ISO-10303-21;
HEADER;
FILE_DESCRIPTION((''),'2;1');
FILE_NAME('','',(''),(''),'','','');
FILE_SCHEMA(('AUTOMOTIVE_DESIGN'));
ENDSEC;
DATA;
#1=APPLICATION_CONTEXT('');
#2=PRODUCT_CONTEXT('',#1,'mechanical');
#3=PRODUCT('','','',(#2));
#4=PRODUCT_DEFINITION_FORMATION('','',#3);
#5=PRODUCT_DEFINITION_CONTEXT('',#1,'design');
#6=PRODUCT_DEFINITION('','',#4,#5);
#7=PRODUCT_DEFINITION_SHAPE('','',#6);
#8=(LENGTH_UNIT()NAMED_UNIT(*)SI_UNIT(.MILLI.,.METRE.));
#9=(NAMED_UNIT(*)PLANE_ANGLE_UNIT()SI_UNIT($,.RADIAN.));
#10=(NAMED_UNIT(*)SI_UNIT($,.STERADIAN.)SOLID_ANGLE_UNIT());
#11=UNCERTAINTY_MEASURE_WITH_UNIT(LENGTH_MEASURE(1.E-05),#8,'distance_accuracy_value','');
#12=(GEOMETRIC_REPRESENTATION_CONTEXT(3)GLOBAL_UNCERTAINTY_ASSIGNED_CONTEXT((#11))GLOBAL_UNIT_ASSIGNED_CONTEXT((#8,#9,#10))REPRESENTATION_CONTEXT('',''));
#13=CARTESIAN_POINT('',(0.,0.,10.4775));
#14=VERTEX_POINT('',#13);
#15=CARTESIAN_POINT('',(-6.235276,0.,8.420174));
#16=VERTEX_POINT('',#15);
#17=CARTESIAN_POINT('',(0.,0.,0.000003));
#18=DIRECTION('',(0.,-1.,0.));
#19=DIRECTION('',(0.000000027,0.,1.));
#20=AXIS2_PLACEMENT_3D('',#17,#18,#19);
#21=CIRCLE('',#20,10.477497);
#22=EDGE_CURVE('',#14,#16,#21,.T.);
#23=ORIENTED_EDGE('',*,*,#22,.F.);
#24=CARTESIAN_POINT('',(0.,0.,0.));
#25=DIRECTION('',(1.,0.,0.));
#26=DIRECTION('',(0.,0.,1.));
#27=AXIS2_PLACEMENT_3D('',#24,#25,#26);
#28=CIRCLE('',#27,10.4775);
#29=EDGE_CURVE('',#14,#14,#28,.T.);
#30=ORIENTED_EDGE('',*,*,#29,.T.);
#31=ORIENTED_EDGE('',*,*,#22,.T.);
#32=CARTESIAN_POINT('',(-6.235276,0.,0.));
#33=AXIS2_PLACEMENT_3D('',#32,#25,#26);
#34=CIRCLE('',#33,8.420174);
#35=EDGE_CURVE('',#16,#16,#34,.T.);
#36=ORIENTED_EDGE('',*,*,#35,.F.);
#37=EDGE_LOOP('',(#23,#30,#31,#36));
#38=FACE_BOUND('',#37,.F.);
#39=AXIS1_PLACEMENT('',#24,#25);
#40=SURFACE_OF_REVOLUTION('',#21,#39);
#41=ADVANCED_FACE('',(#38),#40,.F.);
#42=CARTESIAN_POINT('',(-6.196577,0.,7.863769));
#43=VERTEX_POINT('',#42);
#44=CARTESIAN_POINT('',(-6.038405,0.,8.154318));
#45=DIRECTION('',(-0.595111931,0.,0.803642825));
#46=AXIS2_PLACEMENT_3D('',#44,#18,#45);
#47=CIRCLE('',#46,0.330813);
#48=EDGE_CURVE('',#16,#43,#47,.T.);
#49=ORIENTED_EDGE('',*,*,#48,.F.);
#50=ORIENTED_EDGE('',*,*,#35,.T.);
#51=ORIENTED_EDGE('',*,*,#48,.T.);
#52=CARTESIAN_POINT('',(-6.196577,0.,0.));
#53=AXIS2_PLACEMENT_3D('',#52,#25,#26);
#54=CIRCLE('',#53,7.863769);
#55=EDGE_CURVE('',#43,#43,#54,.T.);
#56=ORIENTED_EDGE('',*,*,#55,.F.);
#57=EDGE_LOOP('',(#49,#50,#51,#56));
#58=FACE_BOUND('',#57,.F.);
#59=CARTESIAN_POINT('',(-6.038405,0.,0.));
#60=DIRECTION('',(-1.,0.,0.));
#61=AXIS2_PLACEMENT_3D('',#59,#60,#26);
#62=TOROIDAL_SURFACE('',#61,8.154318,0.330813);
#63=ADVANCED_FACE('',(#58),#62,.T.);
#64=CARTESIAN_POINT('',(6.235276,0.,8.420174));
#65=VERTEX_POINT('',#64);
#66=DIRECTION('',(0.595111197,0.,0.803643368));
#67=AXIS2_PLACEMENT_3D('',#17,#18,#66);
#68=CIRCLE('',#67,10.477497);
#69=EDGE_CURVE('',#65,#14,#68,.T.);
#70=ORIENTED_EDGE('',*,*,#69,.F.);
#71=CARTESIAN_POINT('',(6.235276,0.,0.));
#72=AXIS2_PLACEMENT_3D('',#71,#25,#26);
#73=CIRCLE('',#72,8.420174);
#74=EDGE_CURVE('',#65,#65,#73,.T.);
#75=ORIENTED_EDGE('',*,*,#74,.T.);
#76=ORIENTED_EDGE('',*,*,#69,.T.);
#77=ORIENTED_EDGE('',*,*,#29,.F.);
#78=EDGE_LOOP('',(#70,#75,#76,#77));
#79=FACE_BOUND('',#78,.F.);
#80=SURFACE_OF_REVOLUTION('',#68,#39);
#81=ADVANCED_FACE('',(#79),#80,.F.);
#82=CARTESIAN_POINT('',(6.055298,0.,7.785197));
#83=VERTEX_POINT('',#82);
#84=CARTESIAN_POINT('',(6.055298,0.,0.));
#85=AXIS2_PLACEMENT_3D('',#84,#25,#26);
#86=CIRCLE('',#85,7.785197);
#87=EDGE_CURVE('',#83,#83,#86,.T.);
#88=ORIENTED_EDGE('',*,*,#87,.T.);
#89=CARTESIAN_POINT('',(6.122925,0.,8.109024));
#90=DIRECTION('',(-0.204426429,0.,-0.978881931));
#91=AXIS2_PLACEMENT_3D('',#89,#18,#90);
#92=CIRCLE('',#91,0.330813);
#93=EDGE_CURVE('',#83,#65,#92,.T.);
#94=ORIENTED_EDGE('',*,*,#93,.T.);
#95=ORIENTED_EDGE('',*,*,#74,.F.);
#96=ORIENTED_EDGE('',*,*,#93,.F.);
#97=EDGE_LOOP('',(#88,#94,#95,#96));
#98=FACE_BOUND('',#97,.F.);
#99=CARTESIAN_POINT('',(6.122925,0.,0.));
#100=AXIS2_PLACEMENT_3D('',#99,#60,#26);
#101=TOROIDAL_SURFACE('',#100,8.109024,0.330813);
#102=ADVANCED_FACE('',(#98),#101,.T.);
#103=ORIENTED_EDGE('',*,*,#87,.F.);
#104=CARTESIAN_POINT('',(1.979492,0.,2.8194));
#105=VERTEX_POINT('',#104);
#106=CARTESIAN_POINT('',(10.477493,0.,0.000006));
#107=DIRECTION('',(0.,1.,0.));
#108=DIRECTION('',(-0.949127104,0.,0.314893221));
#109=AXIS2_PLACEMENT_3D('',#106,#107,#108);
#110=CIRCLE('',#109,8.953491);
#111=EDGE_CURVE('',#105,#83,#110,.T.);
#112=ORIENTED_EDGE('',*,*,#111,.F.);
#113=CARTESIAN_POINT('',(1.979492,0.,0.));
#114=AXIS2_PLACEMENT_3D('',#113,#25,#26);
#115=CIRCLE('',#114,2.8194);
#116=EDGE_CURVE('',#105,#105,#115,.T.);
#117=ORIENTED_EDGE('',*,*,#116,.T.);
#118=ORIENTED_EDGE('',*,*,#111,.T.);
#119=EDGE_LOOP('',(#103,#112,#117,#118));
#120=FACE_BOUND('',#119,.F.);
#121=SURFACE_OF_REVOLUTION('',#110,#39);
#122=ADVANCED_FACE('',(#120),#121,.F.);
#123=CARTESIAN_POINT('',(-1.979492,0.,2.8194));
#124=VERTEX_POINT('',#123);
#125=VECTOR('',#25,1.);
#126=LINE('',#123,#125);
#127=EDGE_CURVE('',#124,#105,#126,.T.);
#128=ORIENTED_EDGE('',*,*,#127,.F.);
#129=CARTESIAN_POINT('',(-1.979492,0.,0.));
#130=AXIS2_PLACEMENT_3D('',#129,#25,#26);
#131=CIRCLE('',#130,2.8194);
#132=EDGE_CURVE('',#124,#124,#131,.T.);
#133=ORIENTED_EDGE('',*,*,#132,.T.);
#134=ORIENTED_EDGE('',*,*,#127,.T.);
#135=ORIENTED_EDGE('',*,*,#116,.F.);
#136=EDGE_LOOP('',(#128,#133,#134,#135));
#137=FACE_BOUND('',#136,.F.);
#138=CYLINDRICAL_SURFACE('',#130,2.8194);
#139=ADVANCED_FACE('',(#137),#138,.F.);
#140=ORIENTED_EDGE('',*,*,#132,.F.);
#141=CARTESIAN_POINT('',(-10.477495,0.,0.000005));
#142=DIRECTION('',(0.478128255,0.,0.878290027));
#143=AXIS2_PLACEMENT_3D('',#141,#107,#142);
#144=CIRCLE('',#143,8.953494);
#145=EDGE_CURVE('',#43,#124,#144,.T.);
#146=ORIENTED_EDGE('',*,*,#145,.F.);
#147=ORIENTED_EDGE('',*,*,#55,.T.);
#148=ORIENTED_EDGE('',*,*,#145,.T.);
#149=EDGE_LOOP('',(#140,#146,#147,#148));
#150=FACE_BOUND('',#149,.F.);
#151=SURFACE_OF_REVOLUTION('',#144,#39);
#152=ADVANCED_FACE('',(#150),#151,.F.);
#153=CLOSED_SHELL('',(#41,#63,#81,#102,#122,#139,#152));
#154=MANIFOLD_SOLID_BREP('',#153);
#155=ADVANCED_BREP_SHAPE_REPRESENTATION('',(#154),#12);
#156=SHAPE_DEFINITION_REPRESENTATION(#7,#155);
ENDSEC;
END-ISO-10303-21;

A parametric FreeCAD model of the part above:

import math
import FreeCAD as App
import Part
import Sketcher
from FreeCAD import Vector
Q = App.Units.Quantity

doc = App.newDocument("Part")
params = doc.addObject("Spreadsheet::Sheet", "Params")
for row, (alias, value) in enumerate([
    ("revolution_angle", "360 deg"),
], start=1):
    params.set(f"A{row}", alias)
    params.set(f"B{row}", "=" + value)
    params.setAlias(f"B{row}", alias)

body = doc.addObject("PartDesign::Body", "Body")

# Sketch on XZ plane
sketch1 = body.newObject("Sketcher::SketchObject", "Sketch")
sketch1.AttachmentSupport = (doc.getObject("XZ_Plane"), [""])
sketch1.MapMode = "FlatFace"
sketch1.addGeometry(Part.LineSegment(Vector(-1.979492, 2.8194, 0), Vector(1.979492, 2.8194, 0)), False)
sketch1.addGeometry(Part.ArcOfCircle(Part.Circle(Vector(10.477493, 0.000006, 0), Vector(0, 0, 1), 8.953491), math.radians(119.597726), math.radians(161.645632)), False)
sketch1.addGeometry(Part.ArcOfCircle(Part.Circle(Vector(6.122925, 8.109024, 0), Vector(0, 0, 1), 0.330813), math.radians(-101.795925), math.radians(70.146203)), False)
sketch1.addGeometry(Part.ArcOfCircle(Part.Circle(Vector(0, 0.000003, 0), Vector(0, 0, 1), 10.477497), math.radians(53.47944), math.radians(90.000002)), False)
sketch1.addGeometry(Part.ArcOfCircle(Part.Circle(Vector(0, 0.000003, 0), Vector(0, 0, 1), 10.477497), math.radians(89.999998), math.radians(126.52056)), False)
sketch1.addGeometry(Part.ArcOfCircle(Part.Circle(Vector(-6.038405, 8.154318, 0), Vector(0, 0, 1), 0.330813), math.radians(126.520612), math.radians(241.436629)), False)
sketch1.addGeometry(Part.ArcOfCircle(Part.Circle(Vector(-10.477495, 0.000005, 0), Vector(0, 0, 1), 8.953494), math.radians(18.354373), math.radians(61.436773)), False)
sketch1.addConstraint(Sketcher.Constraint("Coincident", 0, 2, 1, 2))
sketch1.addConstraint(Sketcher.Constraint("Coincident", 1, 1, 2, 1))
sketch1.addConstraint(Sketcher.Constraint("Coincident", 2, 2, 3, 1))
sketch1.addConstraint(Sketcher.Constraint("Coincident", 3, 2, 4, 1))
sketch1.addConstraint(Sketcher.Constraint("Coincident", 4, 2, 5, 1))
sketch1.addConstraint(Sketcher.Constraint("Coincident", 5, 2, 6, 2))
sketch1.addConstraint(Sketcher.Constraint("Coincident", 6, 1, 0, 1))
sketch1.addConstraint(Sketcher.Constraint("Horizontal", 0))
sketch1.addConstraint(Sketcher.Constraint("Coincident", 3, 3, -1, 1))
sketch1.addConstraint(Sketcher.Constraint("Coincident", 4, 3, -1, 1))
sketch1.addConstraint(Sketcher.Constraint("PointOnObject", 3, 2, -2))
sketch1.addConstraint(Sketcher.Constraint("Radius", 1, Q("8.953491 mm")))
sketch1.addConstraint(Sketcher.Constraint("Radius", 2, Q("0.330813 mm")))
sketch1.addConstraint(Sketcher.Constraint("Radius", 3, Q("10.477497 mm")))
sketch1.addConstraint(Sketcher.Constraint("Radius", 5, Q("0.330813 mm")))
sketch1.addConstraint(Sketcher.Constraint("Radius", 6, Q("8.953494 mm")))
sketch1.addConstraint(Sketcher.Constraint("DistanceX", 0, 2, 1, 3, Q("8.498001 mm")))
sketch1.addConstraint(Sketcher.Constraint("DistanceY", -1, 1, 0, 2, Q("2.8194 mm")))
sketch1.addConstraint(Sketcher.Constraint("DistanceX", 5, 3, 1, 3, Q("16.515898 mm")))
sketch1.addConstraint(Sketcher.Constraint("DistanceX", 4, 3, 1, 1, Q("6.055298 mm")))
sketch1.addConstraint(Sketcher.Constraint("DistanceX", 4, 2, 5, 2, Q("0.038699 mm")))
sketch1.addConstraint(Sketcher.Constraint("DistanceX", 0, 1, 0, 2, Q("3.958984 mm")))
sketch1.addConstraint(Sketcher.Constraint("DistanceY", -1, 1, 5, 3, Q("8.154318 mm")))
sketch1.addConstraint(Sketcher.Constraint("DistanceY", -1, 1, 5, 2, Q("7.863769 mm")))
sketch1.addConstraint(Sketcher.Constraint("DistanceX", 2, 3, 1, 3, Q("4.354568 mm")))
revolution = body.newObject("PartDesign::Revolution", "Revolution")
revolution.Profile = sketch1
revolution.ReferenceAxis = (sketch1, ["H_Axis"])
revolution.setExpression("Angle", "Params.revolution_angle")

doc.recompute()
